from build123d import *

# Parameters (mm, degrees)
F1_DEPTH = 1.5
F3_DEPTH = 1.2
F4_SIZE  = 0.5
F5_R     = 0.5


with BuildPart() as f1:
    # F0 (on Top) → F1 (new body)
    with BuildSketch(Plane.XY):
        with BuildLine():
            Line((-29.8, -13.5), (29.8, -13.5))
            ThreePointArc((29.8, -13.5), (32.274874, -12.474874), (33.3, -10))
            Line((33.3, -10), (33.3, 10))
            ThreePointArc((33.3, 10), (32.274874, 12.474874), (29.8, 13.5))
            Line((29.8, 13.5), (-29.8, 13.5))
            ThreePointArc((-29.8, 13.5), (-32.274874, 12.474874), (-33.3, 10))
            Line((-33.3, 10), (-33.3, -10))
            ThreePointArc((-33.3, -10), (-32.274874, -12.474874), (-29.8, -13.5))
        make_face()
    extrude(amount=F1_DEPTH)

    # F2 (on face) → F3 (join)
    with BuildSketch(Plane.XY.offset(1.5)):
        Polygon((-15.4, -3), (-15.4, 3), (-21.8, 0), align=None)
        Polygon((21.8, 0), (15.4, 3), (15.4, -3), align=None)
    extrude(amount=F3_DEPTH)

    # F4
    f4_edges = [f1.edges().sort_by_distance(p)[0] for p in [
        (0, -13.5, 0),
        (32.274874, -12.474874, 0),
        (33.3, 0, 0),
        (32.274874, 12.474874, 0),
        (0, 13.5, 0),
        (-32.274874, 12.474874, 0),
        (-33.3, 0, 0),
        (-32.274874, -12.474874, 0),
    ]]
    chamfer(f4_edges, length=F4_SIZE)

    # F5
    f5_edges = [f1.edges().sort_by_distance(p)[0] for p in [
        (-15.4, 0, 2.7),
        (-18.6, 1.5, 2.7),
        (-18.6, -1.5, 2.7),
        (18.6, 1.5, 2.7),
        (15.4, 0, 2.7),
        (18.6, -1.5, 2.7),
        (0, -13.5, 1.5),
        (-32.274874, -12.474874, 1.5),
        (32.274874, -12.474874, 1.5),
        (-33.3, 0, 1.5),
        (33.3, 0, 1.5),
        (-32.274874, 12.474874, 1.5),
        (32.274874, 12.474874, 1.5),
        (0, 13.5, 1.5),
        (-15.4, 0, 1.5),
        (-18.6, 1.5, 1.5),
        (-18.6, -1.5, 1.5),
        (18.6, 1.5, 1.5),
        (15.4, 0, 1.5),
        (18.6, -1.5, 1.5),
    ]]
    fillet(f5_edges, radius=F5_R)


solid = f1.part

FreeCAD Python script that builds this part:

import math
import FreeCAD as App
import Part
import Sketcher

V = App.Vector
Q = App.Units.Quantity


def edges_at(feature, points):
    """Names of the edges that pass closest to the given points."""
    edges = feature.Shape.Edges
    near = lambda p: min(range(len(edges)), key=lambda i: edges[i].distToShape(Part.Vertex(*p))[0])
    return sorted({f"Edge{near(p) + 1}" for p in points})


def add_polygon(sketch, points):
    """Adds a closed chain of lines whose ends are joined by coincident constraints."""
    first, n = sketch.GeometryCount, len(points)
    for a, b in zip(points, points[1:] + points[:1]):
        sketch.addGeometry(Part.LineSegment(App.Vector(*a, 0), App.Vector(*b, 0)), False)
    for i in range(n):
        sketch.addConstraint(Sketcher.Constraint("Coincident", first + i, 2, first + (i + 1) % n, 1))

doc = App.newDocument("Part")
body = doc.addObject("PartDesign::Body", "Body")

# Sketch on XY plane
sketch1 = body.newObject("Sketcher::SketchObject", "Sketch")
sketch1.AttachmentSupport = (doc.getObject("XY_Plane"), [""])
sketch1.MapMode = "FlatFace"
sketch1.addGeometry(Part.LineSegment(V(-29.8, -13.5, 0), V(29.8, -13.5, 0)), False)
sketch1.addGeometry(Part.ArcOfCircle(Part.Circle(V(29.800001, -10.000001, 0), V(0, 0, 1), 3.499999), math.radians(-90.000015), math.radians(0.000015)), False)
sketch1.addGeometry(Part.LineSegment(V(33.3, -10, 0), V(33.3, 10, 0)), False)
sketch1.addGeometry(Part.ArcOfCircle(Part.Circle(V(29.800001, 10.000001, 0), V(0, 0, 1), 3.499999), math.radians(-0.000015), math.radians(90.000015)), False)
sketch1.addGeometry(Part.LineSegment(V(29.8, 13.5, 0), V(-29.8, 13.5, 0)), False)
sketch1.addGeometry(Part.ArcOfCircle(Part.Circle(V(-29.800001, 10.000001, 0), V(0, 0, 1), 3.499999), math.radians(89.999985), math.radians(180.000015)), False)
sketch1.addGeometry(Part.LineSegment(V(-33.3, 10, 0), V(-33.3, -10, 0)), False)
sketch1.addGeometry(Part.ArcOfCircle(Part.Circle(V(-29.800001, -10.000001, 0), V(0, 0, 1), 3.499999), math.radians(179.999985), math.radians(270.000015)), False)
sketch1.addConstraint(Sketcher.Constraint("Tangent", 0, 2, 1, 1))
sketch1.addConstraint(Sketcher.Constraint("Tangent", 1, 2, 2, 1))
sketch1.addConstraint(Sketcher.Constraint("Tangent", 2, 2, 3, 1))
sketch1.addConstraint(Sketcher.Constraint("Tangent", 3, 2, 4, 1))
sketch1.addConstraint(Sketcher.Constraint("Tangent", 4, 2, 5, 1))
sketch1.addConstraint(Sketcher.Constraint("Tangent", 5, 2, 6, 1))
sketch1.addConstraint(Sketcher.Constraint("Tangent", 6, 2, 7, 1))
sketch1.addConstraint(Sketcher.Constraint("Tangent", 7, 2, 0, 1))
sketch1.addConstraint(Sketcher.Constraint("Horizontal", 0))
sketch1.addConstraint(Sketcher.Constraint("Vertical", 2))
sketch1.addConstraint(Sketcher.Constraint("Horizontal", 4))
sketch1.addConstraint(Sketcher.Constraint("Vertical", 6))
sketch1.addConstraint(Sketcher.Constraint("Equal", 1, 3))
sketch1.addConstraint(Sketcher.Constraint("Equal", 3, 5))
sketch1.addConstraint(Sketcher.Constraint("Equal", 5, 7))
sketch1.addConstraint(Sketcher.Constraint("Symmetric", 1, 3, 5, 3, -1, 1))
sketch1.addConstraint(Sketcher.Constraint("Radius", 1, Q("3.499999 mm")))
sketch1.addConstraint(Sketcher.Constraint("DistanceY", 2, 1, 2, 2, Q("20 mm")))
sketch1.addConstraint(Sketcher.Constraint("DistanceX", 0, 1, 0, 2, Q("59.6 mm")))
pad1 = body.newObject("PartDesign::Pad", "Pad")
pad1.Profile = sketch1
pad1.Length = 1.5

# Sketch on XY plane
sketch2 = body.newObject("Sketcher::SketchObject", "Sketch001")
sketch2.AttachmentSupport = (doc.getObject("XY_Plane"), [""])
sketch2.MapMode = "FlatFace"
sketch2.AttachmentOffset = App.Placement(V(0, 0, 1.5), App.Rotation())
add_polygon(sketch2, [(-15.4, -3), (-15.4, 3), (-21.8, 0)])  # lines 0-2
add_polygon(sketch2, [(21.8, 0), (15.4, 3), (15.4, -3)])  # lines 3-5
sketch2.addConstraint(Sketcher.Constraint("Vertical", 0))
sketch2.addConstraint(Sketcher.Constraint("Vertical", 4))
sketch2.addConstraint(Sketcher.Constraint("Symmetric", 2, 2, 3, 2, -1, 1))
sketch2.addConstraint(Sketcher.Constraint("Symmetric", 1, 2, 5, 2, -1, 1))
sketch2.addConstraint(Sketcher.Constraint("PointOnObject", 1, 2, -1))
sketch2.addConstraint(Sketcher.Constraint("Parallel", 1, 5))
sketch2.addConstraint(Sketcher.Constraint("Horizontal", 0, 2, 3, 2))
sketch2.addConstraint(Sketcher.Constraint("DistanceY", 0, 1, 0, 2, Q("6 mm")))
sketch2.addConstraint(Sketcher.Constraint("DistanceX", 0, 2, -1, 1, Q("15.4 mm")))
sketch2.addConstraint(Sketcher.Constraint("DistanceX", 1, 2, -1, 1, Q("21.8 mm")))
pad2 = body.newObject("PartDesign::Pad", "Pad001")
pad2.Profile = sketch2
pad2.Length = 1.2
doc.recompute()

chamfer = body.newObject("PartDesign::Chamfer", "Chamfer")
chamfer.Base = (pad2, edges_at(pad2, [
    (0, -13.5, 0),
    (32.275, -12.475, 0),
    (33.3, 0, 0),
    (32.275, 12.475, 0),
    (0, 13.5, 0),
    (-32.275, 12.475, 0),
    (-33.3, 0, 0),
    (-32.275, -12.475, 0),
]))
chamfer.Size = 0.5
doc.recompute()

fillet = body.newObject("PartDesign::Fillet", "Fillet")
fillet.Base = (chamfer, edges_at(chamfer, [
    (-15.4, 0, 2.7),
    (-18.6, 1.5, 2.7),
    (-18.6, -1.5, 2.7),
    (18.6, 1.5, 2.7),
    (15.4, 0, 2.7),
    (18.6, -1.5, 2.7),
    (0, -13.5, 1.5),
    (-32.275, -12.475, 1.5),
    (32.275, -12.475, 1.5),
    (-33.3, 0, 1.5),
    (33.3, 0, 1.5),
    (-32.275, 12.475, 1.5),
    (32.275, 12.475, 1.5),
    (0, 13.5, 1.5),
    (-15.4, 0, 1.5),
    (-18.6, 1.5, 1.5),
    (-18.6, -1.5, 1.5),
    (18.6, 1.5, 1.5),
    (15.4, 0, 1.5),
    (18.6, -1.5, 1.5),
]))
fillet.Radius = 0.5

doc.recompute()
